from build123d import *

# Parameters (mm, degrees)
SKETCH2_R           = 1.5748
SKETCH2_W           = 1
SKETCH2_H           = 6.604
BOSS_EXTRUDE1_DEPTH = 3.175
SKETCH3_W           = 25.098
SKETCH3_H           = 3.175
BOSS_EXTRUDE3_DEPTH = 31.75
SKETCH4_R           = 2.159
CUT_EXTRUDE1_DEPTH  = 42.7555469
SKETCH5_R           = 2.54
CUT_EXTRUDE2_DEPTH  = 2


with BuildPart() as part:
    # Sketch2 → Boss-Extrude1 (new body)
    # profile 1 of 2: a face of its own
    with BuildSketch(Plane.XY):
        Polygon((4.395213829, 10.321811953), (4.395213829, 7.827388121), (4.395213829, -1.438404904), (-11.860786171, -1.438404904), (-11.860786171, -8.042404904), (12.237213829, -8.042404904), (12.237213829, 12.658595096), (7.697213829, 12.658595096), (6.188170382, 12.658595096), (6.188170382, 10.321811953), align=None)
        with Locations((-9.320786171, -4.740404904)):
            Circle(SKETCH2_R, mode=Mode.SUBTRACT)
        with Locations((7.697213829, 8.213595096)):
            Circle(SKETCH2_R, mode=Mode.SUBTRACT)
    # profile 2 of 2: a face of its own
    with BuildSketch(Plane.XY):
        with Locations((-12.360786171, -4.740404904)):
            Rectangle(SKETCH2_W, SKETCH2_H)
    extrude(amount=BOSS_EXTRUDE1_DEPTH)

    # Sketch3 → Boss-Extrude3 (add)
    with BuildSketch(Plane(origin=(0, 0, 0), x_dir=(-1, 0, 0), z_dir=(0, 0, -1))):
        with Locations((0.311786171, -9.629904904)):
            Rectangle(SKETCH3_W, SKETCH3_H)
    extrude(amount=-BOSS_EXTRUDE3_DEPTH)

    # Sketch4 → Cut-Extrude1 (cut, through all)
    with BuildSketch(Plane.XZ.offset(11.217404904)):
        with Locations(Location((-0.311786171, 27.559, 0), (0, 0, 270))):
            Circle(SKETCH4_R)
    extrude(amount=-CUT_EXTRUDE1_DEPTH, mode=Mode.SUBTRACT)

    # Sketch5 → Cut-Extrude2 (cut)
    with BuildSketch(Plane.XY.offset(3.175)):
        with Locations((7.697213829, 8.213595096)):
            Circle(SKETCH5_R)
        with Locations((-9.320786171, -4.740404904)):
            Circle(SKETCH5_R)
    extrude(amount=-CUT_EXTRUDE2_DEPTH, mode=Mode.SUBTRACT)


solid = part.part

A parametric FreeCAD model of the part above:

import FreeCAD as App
import Part
import Sketcher

V = App.Vector
Q = App.Units.Quantity

doc = App.newDocument("Part")
body = doc.addObject("PartDesign::Body", "Body")

# Sketch on XY plane
sketch1 = body.newObject("Sketcher::SketchObject", "Sketch")
sketch1.AttachmentSupport = (doc.getObject("XY_Plane"), [""])
sketch1.MapMode = "FlatFace"
sketch1.addGeometry(Part.LineSegment(V(4.4, 10.3, 0), V(4.4, -1.4, 0)), False)
sketch1.addGeometry(Part.LineSegment(V(4.4, -1.4, 0), V(-12.9, -1.4, 0)), False)
sketch1.addGeometry(Part.LineSegment(V(-12.9, -1.4, 0), V(-12.9, -8, 0)), False)
sketch1.addGeometry(Part.LineSegment(V(-12.9, -8, 0), V(12.2, -8, 0)), False)
sketch1.addGeometry(Part.LineSegment(V(12.2, -8, 0), V(12.2, 12.7, 0)), False)
sketch1.addGeometry(Part.LineSegment(V(12.2, 12.7, 0), V(6.2, 12.7, 0)), False)
sketch1.addGeometry(Part.LineSegment(V(6.2, 12.7, 0), V(6.2, 10.3, 0)), False)
sketch1.addGeometry(Part.LineSegment(V(6.2, 10.3, 0), V(4.4, 10.3, 0)), False)
sketch1.addGeometry(Part.Circle(V(-9.3, -4.7, 0), V(0, 0, 1), 1.6), False)
sketch1.addGeometry(Part.Circle(V(7.7, 8.2, 0), V(0, 0, 1), 1.6), False)
sketch1.addConstraint(Sketcher.Constraint("Coincident", 0, 2, 1, 1))
sketch1.addConstraint(Sketcher.Constraint("Coincident", 1, 2, 2, 1))
sketch1.addConstraint(Sketcher.Constraint("Coincident", 2, 2, 3, 1))
sketch1.addConstraint(Sketcher.Constraint("Coincident", 3, 2, 4, 1))
sketch1.addConstraint(Sketcher.Constraint("Coincident", 4, 2, 5, 1))
sketch1.addConstraint(Sketcher.Constraint("Coincident", 5, 2, 6, 1))
sketch1.addConstraint(Sketcher.Constraint("Coincident", 6, 2, 7, 1))
sketch1.addConstraint(Sketcher.Constraint("Coincident", 7, 2, 0, 1))
sketch1.addConstraint(Sketcher.Constraint("Vertical", 0))
sketch1.addConstraint(Sketcher.Constraint("Horizontal", 1))
sketch1.addConstraint(Sketcher.Constraint("Vertical", 2))
sketch1.addConstraint(Sketcher.Constraint("Horizontal", 3))
sketch1.addConstraint(Sketcher.Constraint("Vertical", 4))
sketch1.addConstraint(Sketcher.Constraint("Horizontal", 5))
sketch1.addConstraint(Sketcher.Constraint("Vertical", 6))
sketch1.addConstraint(Sketcher.Constraint("Horizontal", 7))
sketch1.addConstraint(Sketcher.Constraint("Equal", 8, 9))
sketch1.addConstraint(Sketcher.Constraint("Diameter", 8, Q("0.124 in")))
sketch1.addConstraint(Sketcher.Constraint("DistanceY", 2, 2, 2, 1, Q("0.26 in")))
sketch1.addConstraint(Sketcher.Constraint("DistanceY", 4, 1, 4, 2, Q("0.815 in")))
sketch1.addConstraint(Sketcher.Constraint("DistanceX", 8, 3, 9, 3, Q("0.67 in")))
sketch1.addConstraint(Sketcher.Constraint("DistanceY", 8, 3, 9, 3, Q("0.51 in")))
sketch1.addConstraint(Sketcher.Constraint("DistanceX", 0, 2, 9, 3, Q("0.13 in")))
sketch1.addConstraint(Sketcher.Constraint("DistanceY", 0, 2, 9, 3, Q("0.38 in")))
sketch1.addConstraint(Sketcher.Constraint("DistanceX", 1, 2, 1, 1, 17.256))
sketch1.addConstraint(Sketcher.Constraint("DistanceX", 3, 1, 3, 2, 25.098))
sketch1.addConstraint(Sketcher.Constraint("DistanceX", 5, 2, 5, 1, 6.049043))
sketch1.addConstraint(Sketcher.Constraint("DistanceY", 0, 2, 0, 1, 11.760217))
sketch1.addConstraint(Sketcher.Constraint("DistanceX", -1, 1, 5, 2, 6.18817))
sketch1.addConstraint(Sketcher.Constraint("DistanceY", -1, 1, 6, 2, 10.321812))
pad1 = body.newObject("PartDesign::Pad", "Pad")
pad1.Profile = sketch1
pad1.Length = Q("0.125 in")

# Sketch on XY plane
sketch2 = body.newObject("Sketcher::SketchObject", "Sketch001")
sketch2.AttachmentSupport = (doc.getObject("XY_Plane"), [""])
sketch2.MapMode = "FlatFace"
sketch2.addGeometry(Part.LineSegment(V(12.2, -8, 0), V(12.2, -11.2, 0)), False)
sketch2.addGeometry(Part.LineSegment(V(12.2, -11.2, 0), V(-12.9, -11.2, 0)), False)
sketch2.addGeometry(Part.LineSegment(V(-12.9, -11.2, 0), V(-12.9, -8, 0)), False)
sketch2.addGeometry(Part.LineSegment(V(-12.9, -8, 0), V(12.2, -8, 0)), False)
sketch2.addConstraint(Sketcher.Constraint("Coincident", 0, 2, 1, 1))
sketch2.addConstraint(Sketcher.Constraint("Coincident", 1, 2, 2, 1))
sketch2.addConstraint(Sketcher.Constraint("Coincident", 2, 2, 3, 1))
sketch2.addConstraint(Sketcher.Constraint("Coincident", 3, 2, 0, 1))
sketch2.addConstraint(Sketcher.Constraint("Vertical", 0))
sketch2.addConstraint(Sketcher.Constraint("Horizontal", 1))
sketch2.addConstraint(Sketcher.Constraint("Vertical", 2))
sketch2.addConstraint(Sketcher.Constraint("Horizontal", 3))
sketch2.addConstraint(Sketcher.Constraint("DistanceY", 0, 2, 0, 1, Q("0.125 in")))
sketch2.addConstraint(Sketcher.Constraint("DistanceX", 1, 2, 1, 1, 25.098))
sketch2.addConstraint(Sketcher.Constraint("DistanceX", -1, 1, 0, 2, 12.237214))
sketch2.addConstraint(Sketcher.Constraint("DistanceY", 0, 2, -1, 1, 11.217405))
pad2 = body.newObject("PartDesign::Pad", "Pad001")
pad2.Profile = sketch2
pad2.Length = Q("1.25 in")

# Sketch on XZ plane
sketch3 = body.newObject("Sketcher::SketchObject", "Sketch002")
sketch3.AttachmentSupport = (doc.getObject("XZ_Plane"), [""])
sketch3.MapMode = "FlatFace"
sketch3.AttachmentOffset = App.Placement(V(0, 0, 11.217405), App.Rotation())
sketch3.addGeometry(Part.Circle(V(-0.3, 27.6, 0), V(0, 0, 1), 2.2), False)
sketch3.addConstraint(Sketcher.Constraint("Diameter", 0, Q("0.17 in")))
sketch3.addConstraint(Sketcher.Constraint("DistanceY", -1, 1, 0, 3, Q("1.085 in")))
sketch3.addConstraint(Sketcher.Constraint("DistanceX", 0, 3, -1, 1, 0.311786))
pocket1 = body.newObject("PartDesign::Pocket", "Pocket")
pocket1.Profile = sketch3
pocket1.Type = "ThroughAll"

# Sketch on XY plane
sketch4 = body.newObject("Sketcher::SketchObject", "Sketch003")
sketch4.AttachmentSupport = (doc.getObject("XY_Plane"), [""])
sketch4.MapMode = "FlatFace"
sketch4.AttachmentOffset = App.Placement(V(0, 0, 0.125 * 25.4), App.Rotation())
sketch4.addGeometry(Part.Circle(V(7.7, 8.2, 0), V(0, 0, 1), 2.5), False)
sketch4.addGeometry(Part.Circle(V(-9.3, -4.7, 0), V(0, 0, 1), 2.5), False)
sketch4.addConstraint(Sketcher.Constraint("Equal", 0, 1))
sketch4.addConstraint(Sketcher.Constraint("Diameter", 0, Q("0.2 in")))
sketch4.addConstraint(Sketcher.Constraint("DistanceX", 1, 3, 0, 3, Q("0.67 in")))
sketch4.addConstraint(Sketcher.Constraint("DistanceY", 1, 3, 0, 3, Q("0.51 in")))
sketch4.addConstraint(Sketcher.Constraint("DistanceX", -1, 1, 0, 3, 7.697214))
sketch4.addConstraint(Sketcher.Constraint("DistanceY", -1, 1, 0, 3, 8.213595))
pocket2 = body.newObject("PartDesign::Pocket", "Pocket001")
pocket2.Profile = sketch4
pocket2.Length = 2

doc.recompute()
